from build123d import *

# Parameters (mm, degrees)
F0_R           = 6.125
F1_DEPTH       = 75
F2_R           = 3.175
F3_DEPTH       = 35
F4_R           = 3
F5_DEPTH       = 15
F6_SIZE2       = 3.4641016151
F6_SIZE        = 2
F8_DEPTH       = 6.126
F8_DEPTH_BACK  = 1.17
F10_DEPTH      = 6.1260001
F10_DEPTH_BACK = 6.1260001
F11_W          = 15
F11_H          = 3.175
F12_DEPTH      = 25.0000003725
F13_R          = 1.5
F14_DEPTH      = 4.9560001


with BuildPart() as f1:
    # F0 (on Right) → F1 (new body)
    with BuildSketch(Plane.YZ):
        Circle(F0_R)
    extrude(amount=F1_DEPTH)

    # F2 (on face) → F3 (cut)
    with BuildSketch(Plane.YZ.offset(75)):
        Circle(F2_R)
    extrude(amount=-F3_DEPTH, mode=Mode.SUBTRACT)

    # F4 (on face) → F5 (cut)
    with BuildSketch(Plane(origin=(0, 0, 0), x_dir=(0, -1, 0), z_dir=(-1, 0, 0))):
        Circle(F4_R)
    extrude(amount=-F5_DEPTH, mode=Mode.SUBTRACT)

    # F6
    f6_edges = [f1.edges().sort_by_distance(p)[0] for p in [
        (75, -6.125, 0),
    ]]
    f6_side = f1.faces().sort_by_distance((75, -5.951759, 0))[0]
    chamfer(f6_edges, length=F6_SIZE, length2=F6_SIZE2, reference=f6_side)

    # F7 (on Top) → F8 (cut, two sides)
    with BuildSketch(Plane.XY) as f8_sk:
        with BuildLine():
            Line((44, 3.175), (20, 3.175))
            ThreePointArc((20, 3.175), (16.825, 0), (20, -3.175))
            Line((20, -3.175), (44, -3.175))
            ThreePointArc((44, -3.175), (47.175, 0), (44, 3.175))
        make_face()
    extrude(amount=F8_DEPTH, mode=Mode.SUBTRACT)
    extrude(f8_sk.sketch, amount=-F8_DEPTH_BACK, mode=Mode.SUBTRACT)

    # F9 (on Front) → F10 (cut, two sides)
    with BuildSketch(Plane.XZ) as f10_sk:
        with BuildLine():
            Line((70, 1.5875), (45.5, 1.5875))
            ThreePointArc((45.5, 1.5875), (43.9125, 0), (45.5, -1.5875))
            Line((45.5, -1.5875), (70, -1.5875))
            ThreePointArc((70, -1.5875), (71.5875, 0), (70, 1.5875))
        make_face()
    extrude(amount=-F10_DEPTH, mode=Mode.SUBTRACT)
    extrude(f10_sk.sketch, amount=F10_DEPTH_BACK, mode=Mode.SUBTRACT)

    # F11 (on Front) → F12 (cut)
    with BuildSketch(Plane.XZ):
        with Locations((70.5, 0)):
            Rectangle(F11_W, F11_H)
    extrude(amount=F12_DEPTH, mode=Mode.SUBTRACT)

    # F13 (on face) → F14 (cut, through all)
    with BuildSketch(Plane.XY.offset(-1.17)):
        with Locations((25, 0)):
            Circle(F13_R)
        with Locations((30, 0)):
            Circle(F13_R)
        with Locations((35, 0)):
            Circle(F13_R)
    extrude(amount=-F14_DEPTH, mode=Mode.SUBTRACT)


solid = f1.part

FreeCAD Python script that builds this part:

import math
import FreeCAD as App
import Part
import Sketcher
from FreeCAD import Vector
Q = App.Units.Quantity


def edges_at(feature, points):
    """Names of the edges that pass closest to the given points."""
    edges = feature.Shape.Edges
    near = lambda p: min(range(len(edges)), key=lambda i: edges[i].distToShape(Part.Vertex(*p))[0])
    return sorted({f"Edge{near(p) + 1}" for p in points})


def add_polygon(sketch, points):
    """Adds a closed chain of lines whose ends are joined by coincident constraints."""
    first, n = sketch.GeometryCount, len(points)
    for a, b in zip(points, points[1:] + points[:1]):
        sketch.addGeometry(Part.LineSegment(App.Vector(*a, 0), App.Vector(*b, 0)), False)
    for i in range(n):
        sketch.addConstraint(Sketcher.Constraint("Coincident", first + i, 2, first + (i + 1) % n, 1))

doc = App.newDocument("Part")
body = doc.addObject("PartDesign::Body", "Body")

sketch1 = body.newObject("Sketcher::SketchObject", "Sketch")
sketch1.AttachmentSupport = (doc.getObject("YZ_Plane"), [""])
sketch1.MapMode = "FlatFace"
sketch1.addGeometry(Part.Circle(Vector(0, 0, 0), Vector(0, 0, 1), 6), False)
sketch1.addConstraint(Sketcher.Constraint("Coincident", 0, 3, -1, 1))
sketch1.addConstraint(Sketcher.Constraint("Diameter", 0, Q("12.25 mm")))
pad1 = body.newObject("PartDesign::Pad", "Pad")
pad1.Profile = sketch1
pad1.Length = 75

sketch2 = body.newObject("Sketcher::SketchObject", "Sketch001")
sketch2.AttachmentSupport = (doc.getObject("YZ_Plane"), [""])
sketch2.MapMode = "FlatFace"
sketch2.AttachmentOffset = App.Placement(Vector(0, 0, 75), App.Rotation())
sketch2.addGeometry(Part.Circle(Vector(0, 0, 0), Vector(0, 0, 1), 3.2), False)
sketch2.addConstraint(Sketcher.Constraint("Coincident", 0, 3, -1, 1))
sketch2.addConstraint(Sketcher.Constraint("Diameter", 0, Q("6.35 mm")))
pocket1 = body.newObject("PartDesign::Pocket", "Pocket")
pocket1.Profile = sketch2
pocket1.Length = 35

sketch3 = body.newObject("Sketcher::SketchObject", "Sketch002")
sketch3.AttachmentSupport = (doc.getObject("YZ_Plane"), [""])
sketch3.MapMode = "FlatFace"
sketch3.addGeometry(Part.Circle(Vector(0, 0, 0), Vector(0, 0, 1), 3), False)
sketch3.addConstraint(Sketcher.Constraint("Coincident", 0, 3, -1, 1))
sketch3.addConstraint(Sketcher.Constraint("Diameter", 0, Q("6 mm")))
pocket2 = body.newObject("PartDesign::Pocket", "Pocket001")
pocket2.Profile = sketch3
pocket2.Length = 15
pocket2.Reversed = True
doc.recompute()

chamfer = body.newObject("PartDesign::Chamfer", "Chamfer")
chamfer.Base = (pocket2, edges_at(pocket2, [(75, -6.125, 0)]))
chamfer.ChamferType = "Two distances"
chamfer.Size = 2
chamfer.Size2 = 3.464102
chamfer.FlipDirection = True

sketch4 = body.newObject("Sketcher::SketchObject", "Sketch003")
sketch4.AttachmentSupport = (doc.getObject("XY_Plane"), [""])
sketch4.MapMode = "FlatFace"
sketch4.addGeometry(Part.LineSegment(Vector(44, 3.2, 0), Vector(20, 3.2, 0)), False)
sketch4.addGeometry(Part.ArcOfCircle(Part.Circle(Vector(20, 0, 0), Vector(0, 0, 1), 3.2), math.radians(90), math.radians(270)), False)
sketch4.addGeometry(Part.LineSegment(Vector(20, -3.2, 0), Vector(44, -3.2, 0)), False)
sketch4.addGeometry(Part.ArcOfCircle(Part.Circle(Vector(44, 0, 0), Vector(0, 0, 1), 3.2), math.radians(-90), math.radians(90)), False)
sketch4.addConstraint(Sketcher.Constraint("Tangent", 0, 2, 1, 1))
sketch4.addConstraint(Sketcher.Constraint("Tangent", 1, 2, 2, 1))
sketch4.addConstraint(Sketcher.Constraint("Tangent", 2, 2, 3, 1))
sketch4.addConstraint(Sketcher.Constraint("Tangent", 3, 2, 0, 1))
sketch4.addConstraint(Sketcher.Constraint("Horizontal", 0))
sketch4.addConstraint(Sketcher.Constraint("Horizontal", 2))
sketch4.addConstraint(Sketcher.Constraint("PointOnObject", 1, 3, -1))
sketch4.addConstraint(Sketcher.Constraint("DistanceX", 0, 2, 0, 1, Q("24 mm")))
sketch4.addConstraint(Sketcher.Constraint("DistanceX", -1, 1, 1, 3, Q("20 mm")))
sketch4.addConstraint(Sketcher.Constraint("Radius", 1, Q("3.175 mm")))
pocket3 = body.newObject("PartDesign::Pocket", "Pocket002")
pocket3.Profile = sketch4
pocket3.Type = "TwoLengths"
pocket3.Length = 6.126
pocket3.Length2 = 1.17
pocket3.Reversed = True

sketch5 = body.newObject("Sketcher::SketchObject", "Sketch004")
sketch5.AttachmentSupport = (doc.getObject("XZ_Plane"), [""])
sketch5.MapMode = "FlatFace"
sketch5.addGeometry(Part.LineSegment(Vector(70, 1.6, 0), Vector(45.5, 1.6, 0)), False)
sketch5.addGeometry(Part.ArcOfCircle(Part.Circle(Vector(45.5, 0, 0), Vector(0, 0, 1), 1.6), math.radians(90), math.radians(270)), False)
sketch5.addGeometry(Part.LineSegment(Vector(45.5, -1.6, 0), Vector(70, -1.6, 0)), False)
sketch5.addGeometry(Part.ArcOfCircle(Part.Circle(Vector(70, 0, 0), Vector(0, 0, 1), 1.6), math.radians(-90), math.radians(90)), False)
sketch5.addConstraint(Sketcher.Constraint("Tangent", 0, 2, 1, 1))
sketch5.addConstraint(Sketcher.Constraint("Tangent", 1, 2, 2, 1))
sketch5.addConstraint(Sketcher.Constraint("Tangent", 2, 2, 3, 1))
sketch5.addConstraint(Sketcher.Constraint("Tangent", 3, 2, 0, 1))
sketch5.addConstraint(Sketcher.Constraint("Horizontal", 0))
sketch5.addConstraint(Sketcher.Constraint("Horizontal", 2))
sketch5.addConstraint(Sketcher.Constraint("PointOnObject", 1, 3, -1))
sketch5.addConstraint(Sketcher.Constraint("DistanceX", 0, 2, 0, 1, Q("24.5 mm")))
sketch5.addConstraint(Sketcher.Constraint("DistanceX", -1, 1, 3, 3, Q("70 mm")))
sketch5.addConstraint(Sketcher.Constraint("Radius", 1, Q("1.5875 mm")))
pocket4 = body.newObject("PartDesign::Pocket", "Pocket003")
pocket4.Profile = sketch5
pocket4.Type = "ThroughAll"
pocket4.Midplane = True

sketch6 = body.newObject("Sketcher::SketchObject", "Sketch005")
sketch6.AttachmentSupport = (doc.getObject("XZ_Plane"), [""])
sketch6.MapMode = "FlatFace"
add_polygon(sketch6, [(63, 1.6), (63, -1.6), (78, -1.6), (78, 1.6)])
sketch6.addConstraint(Sketcher.Constraint("Vertical", 0))
sketch6.addConstraint(Sketcher.Constraint("Horizontal", 1))
sketch6.addConstraint(Sketcher.Constraint("Vertical", 2))
sketch6.addConstraint(Sketcher.Constraint("Horizontal", 3))
sketch6.addConstraint(Sketcher.Constraint("DistanceX", 1, 1, 1, 2, Q("15 mm")))
sketch6.addConstraint(Sketcher.Constraint("DistanceX", -1, 1, 0, 2, Q("63 mm")))
sketch6.addConstraint(Sketcher.Constraint("DistanceY", 0, 2, 0, 1, Q("3.175 mm")))
sketch6.addConstraint(Sketcher.Constraint("DistanceY", 0, 2, -1, 1, Q("1.5875 mm")))
pocket5 = body.newObject("PartDesign::Pocket", "Pocket004")
pocket5.Profile = sketch6
pocket5.Length = 25
pocket5.Reversed = True

sketch7 = body.newObject("Sketcher::SketchObject", "Sketch006")
sketch7.AttachmentSupport = (doc.getObject("XY_Plane"), [""])
sketch7.MapMode = "FlatFace"
sketch7.AttachmentOffset = App.Placement(Vector(0, 0, -1.17), App.Rotation())
sketch7.addGeometry(Part.Circle(Vector(25, 0, 0), Vector(0, 0, 1), 1.5), False)
sketch7.addGeometry(Part.Circle(Vector(30, 0, 0), Vector(0, 0, 1), 1.5), False)
sketch7.addGeometry(Part.Circle(Vector(35, 0, 0), Vector(0, 0, 1), 1.5), False)
sketch7.addConstraint(Sketcher.Constraint("Equal", 0, 1))
sketch7.addConstraint(Sketcher.Constraint("Equal", 1, 2))
sketch7.addConstraint(Sketcher.Constraint("PointOnObject", 0, 3, -1))
sketch7.addConstraint(Sketcher.Constraint("PointOnObject", 1, 3, -1))
sketch7.addConstraint(Sketcher.Constraint("PointOnObject", 2, 3, -1))
sketch7.addConstraint(Sketcher.Constraint("Diameter", 0, Q("3 mm")))
sketch7.addConstraint(Sketcher.Constraint("DistanceX", -1, 1, 0, 3, Q("25 mm")))
sketch7.addConstraint(Sketcher.Constraint("DistanceX", -1, 1, 1, 3, Q("30 mm")))
sketch7.addConstraint(Sketcher.Constraint("DistanceX", -1, 1, 2, 3, Q("35 mm")))
pocket6 = body.newObject("PartDesign::Pocket", "Pocket005")
pocket6.Profile = sketch7
pocket6.Type = "ThroughAll"

doc.recompute()
